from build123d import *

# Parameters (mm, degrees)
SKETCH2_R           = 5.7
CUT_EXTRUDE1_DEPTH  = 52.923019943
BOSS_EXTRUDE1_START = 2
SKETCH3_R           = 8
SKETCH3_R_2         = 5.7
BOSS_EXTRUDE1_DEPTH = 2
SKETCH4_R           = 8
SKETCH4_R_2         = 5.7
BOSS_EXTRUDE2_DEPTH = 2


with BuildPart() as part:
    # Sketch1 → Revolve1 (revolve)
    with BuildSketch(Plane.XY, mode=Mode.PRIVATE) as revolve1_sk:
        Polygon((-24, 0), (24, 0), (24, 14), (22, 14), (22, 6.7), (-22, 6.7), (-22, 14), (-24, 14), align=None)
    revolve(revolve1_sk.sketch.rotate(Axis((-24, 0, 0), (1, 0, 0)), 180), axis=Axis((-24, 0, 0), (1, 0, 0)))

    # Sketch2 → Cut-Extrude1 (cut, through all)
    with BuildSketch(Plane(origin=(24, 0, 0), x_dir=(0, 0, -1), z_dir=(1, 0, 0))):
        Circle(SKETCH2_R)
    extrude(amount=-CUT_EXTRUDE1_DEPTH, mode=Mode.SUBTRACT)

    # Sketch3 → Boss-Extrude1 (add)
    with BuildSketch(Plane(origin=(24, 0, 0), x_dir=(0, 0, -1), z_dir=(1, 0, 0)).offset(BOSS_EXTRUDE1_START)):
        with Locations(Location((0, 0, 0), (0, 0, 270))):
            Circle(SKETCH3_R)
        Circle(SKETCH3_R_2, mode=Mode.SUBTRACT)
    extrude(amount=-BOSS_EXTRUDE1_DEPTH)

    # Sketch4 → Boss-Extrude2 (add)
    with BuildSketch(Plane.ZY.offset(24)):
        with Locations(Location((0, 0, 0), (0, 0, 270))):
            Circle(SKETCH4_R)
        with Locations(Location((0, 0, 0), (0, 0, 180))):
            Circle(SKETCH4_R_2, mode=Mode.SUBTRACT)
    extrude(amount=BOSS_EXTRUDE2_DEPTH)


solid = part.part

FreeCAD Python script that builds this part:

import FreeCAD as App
import Part
import Sketcher
Q = App.Units.Quantity


def add_polygon(sketch, points):
    """Adds a closed chain of lines whose ends are joined by coincident constraints."""
    first, n = sketch.GeometryCount, len(points)
    for a, b in zip(points, points[1:] + points[:1]):
        sketch.addGeometry(Part.LineSegment(App.Vector(*a, 0), App.Vector(*b, 0)), False)
    for i in range(n):
        sketch.addConstraint(Sketcher.Constraint("Coincident", first + i, 2, first + (i + 1) % n, 1))

doc = App.newDocument("Part")
body = doc.addObject("PartDesign::Body", "Body")

sketch1 = body.newObject("Sketcher::SketchObject", "Sketch")
sketch1.AttachmentSupport = (doc.getObject("XY_Plane"), [""])
sketch1.MapMode = "FlatFace"
add_polygon(sketch1, [(-24, 0), (24, 0), (24, 14), (22, 14), (22, 6.7), (-22, 6.7), (-22, 14), (-24, 14)])
sketch1.addConstraint([
    Sketcher.Constraint("Horizontal", 0),
    Sketcher.Constraint("Vertical", 1),
    Sketcher.Constraint("Horizontal", 2),
    Sketcher.Constraint("Vertical", 3),
    Sketcher.Constraint("Horizontal", 4),
    Sketcher.Constraint("Vertical", 5),
    Sketcher.Constraint("Horizontal", 6),
    Sketcher.Constraint("Vertical", 7),
    Sketcher.Constraint("Symmetric", 0, 2, 7, 2, -1, 1),
    Sketcher.Constraint("Symmetric", 2, 2, 5, 2, -2),
    Sketcher.Constraint("DistanceX", 0, 1, 0, 2, Q("48 mm")),
    Sketcher.Constraint("DistanceX", 2, 2, 2, 1, Q("2 mm")),
    Sketcher.Constraint("DistanceY", 1, 1, 1, 2, Q("14 mm")),
    Sketcher.Constraint("DistanceY", 3, 2, 3, 1, Q("7.3 mm")),
])
revolution = body.newObject("PartDesign::Revolution", "Revolution")
revolution.Profile = sketch1
revolution.ReferenceAxis = (sketch1, ["H_Axis"])
revolution.Angle = 360

sketch2 = body.newObject("Sketcher::SketchObject", "Sketch001")
sketch2.AttachmentSupport = (doc.getObject("YZ_Plane"), [""])
sketch2.MapMode = "FlatFace"
sketch2.AttachmentOffset = App.Placement(App.Vector(0, 0, 24), App.Rotation())
sketch2.addGeometry(Part.Circle(App.Vector(0, 0, 0), App.Vector(0, 0, 1), 5.7), False)
sketch2.addConstraint([
    Sketcher.Constraint("Coincident", 0, 3, -1, 1),
    Sketcher.Constraint("Diameter", 0, Q("11.4 mm")),
])
pocket1 = body.newObject("PartDesign::Pocket", "Pocket")
pocket1.Profile = sketch2
pocket1.Type = "ThroughAll"

sketch3 = body.newObject("Sketcher::SketchObject", "Sketch002")
sketch3.AttachmentSupport = (doc.getObject("YZ_Plane"), [""])
sketch3.MapMode = "FlatFace"
sketch3.AttachmentOffset = App.Placement(App.Vector(0, 0, 26), App.Rotation())
sketch3.addGeometry([
    Part.Circle(App.Vector(0, 0, 0), App.Vector(0, 0, 1), 8),
    Part.Circle(App.Vector(0, 0, 0), App.Vector(0, 0, 1), 5.7),
], False)
sketch3.addConstraint([
    Sketcher.Constraint("Coincident", 0, 3, -1, 1),
    Sketcher.Constraint("Coincident", 1, 3, -1, 1),
    Sketcher.Constraint("Diameter", 0, Q("16 mm")),
    Sketcher.Constraint("Diameter", 1, Q("11.4 mm")),
])
pad1 = body.newObject("PartDesign::Pad", "Pad")
pad1.Profile = sketch3
pad1.Length = 2
pad1.Reversed = True

sketch4 = body.newObject("Sketcher::SketchObject", "Sketch003")
sketch4.AttachmentSupport = (doc.getObject("YZ_Plane"), [""])
sketch4.MapMode = "FlatFace"
sketch4.AttachmentOffset = App.Placement(App.Vector(0, 0, -24), App.Rotation())
sketch4.addGeometry([
    Part.Circle(App.Vector(0, 0, 0), App.Vector(0, 0, 1), 8),
    Part.Circle(App.Vector(0, 0, 0), App.Vector(0, 0, 1), 5.7),
], False)
sketch4.addConstraint([
    Sketcher.Constraint("Coincident", 0, 3, -1, 1),
    Sketcher.Constraint("Coincident", 1, 3, -1, 1),
    Sketcher.Constraint("Diameter", 0, Q("16 mm")),
    Sketcher.Constraint("Diameter", 1, Q("11.4 mm")),
])
pad2 = body.newObject("PartDesign::Pad", "Pad001")
pad2.Profile = sketch4
pad2.Length = 2
pad2.Reversed = True

doc.recompute()
